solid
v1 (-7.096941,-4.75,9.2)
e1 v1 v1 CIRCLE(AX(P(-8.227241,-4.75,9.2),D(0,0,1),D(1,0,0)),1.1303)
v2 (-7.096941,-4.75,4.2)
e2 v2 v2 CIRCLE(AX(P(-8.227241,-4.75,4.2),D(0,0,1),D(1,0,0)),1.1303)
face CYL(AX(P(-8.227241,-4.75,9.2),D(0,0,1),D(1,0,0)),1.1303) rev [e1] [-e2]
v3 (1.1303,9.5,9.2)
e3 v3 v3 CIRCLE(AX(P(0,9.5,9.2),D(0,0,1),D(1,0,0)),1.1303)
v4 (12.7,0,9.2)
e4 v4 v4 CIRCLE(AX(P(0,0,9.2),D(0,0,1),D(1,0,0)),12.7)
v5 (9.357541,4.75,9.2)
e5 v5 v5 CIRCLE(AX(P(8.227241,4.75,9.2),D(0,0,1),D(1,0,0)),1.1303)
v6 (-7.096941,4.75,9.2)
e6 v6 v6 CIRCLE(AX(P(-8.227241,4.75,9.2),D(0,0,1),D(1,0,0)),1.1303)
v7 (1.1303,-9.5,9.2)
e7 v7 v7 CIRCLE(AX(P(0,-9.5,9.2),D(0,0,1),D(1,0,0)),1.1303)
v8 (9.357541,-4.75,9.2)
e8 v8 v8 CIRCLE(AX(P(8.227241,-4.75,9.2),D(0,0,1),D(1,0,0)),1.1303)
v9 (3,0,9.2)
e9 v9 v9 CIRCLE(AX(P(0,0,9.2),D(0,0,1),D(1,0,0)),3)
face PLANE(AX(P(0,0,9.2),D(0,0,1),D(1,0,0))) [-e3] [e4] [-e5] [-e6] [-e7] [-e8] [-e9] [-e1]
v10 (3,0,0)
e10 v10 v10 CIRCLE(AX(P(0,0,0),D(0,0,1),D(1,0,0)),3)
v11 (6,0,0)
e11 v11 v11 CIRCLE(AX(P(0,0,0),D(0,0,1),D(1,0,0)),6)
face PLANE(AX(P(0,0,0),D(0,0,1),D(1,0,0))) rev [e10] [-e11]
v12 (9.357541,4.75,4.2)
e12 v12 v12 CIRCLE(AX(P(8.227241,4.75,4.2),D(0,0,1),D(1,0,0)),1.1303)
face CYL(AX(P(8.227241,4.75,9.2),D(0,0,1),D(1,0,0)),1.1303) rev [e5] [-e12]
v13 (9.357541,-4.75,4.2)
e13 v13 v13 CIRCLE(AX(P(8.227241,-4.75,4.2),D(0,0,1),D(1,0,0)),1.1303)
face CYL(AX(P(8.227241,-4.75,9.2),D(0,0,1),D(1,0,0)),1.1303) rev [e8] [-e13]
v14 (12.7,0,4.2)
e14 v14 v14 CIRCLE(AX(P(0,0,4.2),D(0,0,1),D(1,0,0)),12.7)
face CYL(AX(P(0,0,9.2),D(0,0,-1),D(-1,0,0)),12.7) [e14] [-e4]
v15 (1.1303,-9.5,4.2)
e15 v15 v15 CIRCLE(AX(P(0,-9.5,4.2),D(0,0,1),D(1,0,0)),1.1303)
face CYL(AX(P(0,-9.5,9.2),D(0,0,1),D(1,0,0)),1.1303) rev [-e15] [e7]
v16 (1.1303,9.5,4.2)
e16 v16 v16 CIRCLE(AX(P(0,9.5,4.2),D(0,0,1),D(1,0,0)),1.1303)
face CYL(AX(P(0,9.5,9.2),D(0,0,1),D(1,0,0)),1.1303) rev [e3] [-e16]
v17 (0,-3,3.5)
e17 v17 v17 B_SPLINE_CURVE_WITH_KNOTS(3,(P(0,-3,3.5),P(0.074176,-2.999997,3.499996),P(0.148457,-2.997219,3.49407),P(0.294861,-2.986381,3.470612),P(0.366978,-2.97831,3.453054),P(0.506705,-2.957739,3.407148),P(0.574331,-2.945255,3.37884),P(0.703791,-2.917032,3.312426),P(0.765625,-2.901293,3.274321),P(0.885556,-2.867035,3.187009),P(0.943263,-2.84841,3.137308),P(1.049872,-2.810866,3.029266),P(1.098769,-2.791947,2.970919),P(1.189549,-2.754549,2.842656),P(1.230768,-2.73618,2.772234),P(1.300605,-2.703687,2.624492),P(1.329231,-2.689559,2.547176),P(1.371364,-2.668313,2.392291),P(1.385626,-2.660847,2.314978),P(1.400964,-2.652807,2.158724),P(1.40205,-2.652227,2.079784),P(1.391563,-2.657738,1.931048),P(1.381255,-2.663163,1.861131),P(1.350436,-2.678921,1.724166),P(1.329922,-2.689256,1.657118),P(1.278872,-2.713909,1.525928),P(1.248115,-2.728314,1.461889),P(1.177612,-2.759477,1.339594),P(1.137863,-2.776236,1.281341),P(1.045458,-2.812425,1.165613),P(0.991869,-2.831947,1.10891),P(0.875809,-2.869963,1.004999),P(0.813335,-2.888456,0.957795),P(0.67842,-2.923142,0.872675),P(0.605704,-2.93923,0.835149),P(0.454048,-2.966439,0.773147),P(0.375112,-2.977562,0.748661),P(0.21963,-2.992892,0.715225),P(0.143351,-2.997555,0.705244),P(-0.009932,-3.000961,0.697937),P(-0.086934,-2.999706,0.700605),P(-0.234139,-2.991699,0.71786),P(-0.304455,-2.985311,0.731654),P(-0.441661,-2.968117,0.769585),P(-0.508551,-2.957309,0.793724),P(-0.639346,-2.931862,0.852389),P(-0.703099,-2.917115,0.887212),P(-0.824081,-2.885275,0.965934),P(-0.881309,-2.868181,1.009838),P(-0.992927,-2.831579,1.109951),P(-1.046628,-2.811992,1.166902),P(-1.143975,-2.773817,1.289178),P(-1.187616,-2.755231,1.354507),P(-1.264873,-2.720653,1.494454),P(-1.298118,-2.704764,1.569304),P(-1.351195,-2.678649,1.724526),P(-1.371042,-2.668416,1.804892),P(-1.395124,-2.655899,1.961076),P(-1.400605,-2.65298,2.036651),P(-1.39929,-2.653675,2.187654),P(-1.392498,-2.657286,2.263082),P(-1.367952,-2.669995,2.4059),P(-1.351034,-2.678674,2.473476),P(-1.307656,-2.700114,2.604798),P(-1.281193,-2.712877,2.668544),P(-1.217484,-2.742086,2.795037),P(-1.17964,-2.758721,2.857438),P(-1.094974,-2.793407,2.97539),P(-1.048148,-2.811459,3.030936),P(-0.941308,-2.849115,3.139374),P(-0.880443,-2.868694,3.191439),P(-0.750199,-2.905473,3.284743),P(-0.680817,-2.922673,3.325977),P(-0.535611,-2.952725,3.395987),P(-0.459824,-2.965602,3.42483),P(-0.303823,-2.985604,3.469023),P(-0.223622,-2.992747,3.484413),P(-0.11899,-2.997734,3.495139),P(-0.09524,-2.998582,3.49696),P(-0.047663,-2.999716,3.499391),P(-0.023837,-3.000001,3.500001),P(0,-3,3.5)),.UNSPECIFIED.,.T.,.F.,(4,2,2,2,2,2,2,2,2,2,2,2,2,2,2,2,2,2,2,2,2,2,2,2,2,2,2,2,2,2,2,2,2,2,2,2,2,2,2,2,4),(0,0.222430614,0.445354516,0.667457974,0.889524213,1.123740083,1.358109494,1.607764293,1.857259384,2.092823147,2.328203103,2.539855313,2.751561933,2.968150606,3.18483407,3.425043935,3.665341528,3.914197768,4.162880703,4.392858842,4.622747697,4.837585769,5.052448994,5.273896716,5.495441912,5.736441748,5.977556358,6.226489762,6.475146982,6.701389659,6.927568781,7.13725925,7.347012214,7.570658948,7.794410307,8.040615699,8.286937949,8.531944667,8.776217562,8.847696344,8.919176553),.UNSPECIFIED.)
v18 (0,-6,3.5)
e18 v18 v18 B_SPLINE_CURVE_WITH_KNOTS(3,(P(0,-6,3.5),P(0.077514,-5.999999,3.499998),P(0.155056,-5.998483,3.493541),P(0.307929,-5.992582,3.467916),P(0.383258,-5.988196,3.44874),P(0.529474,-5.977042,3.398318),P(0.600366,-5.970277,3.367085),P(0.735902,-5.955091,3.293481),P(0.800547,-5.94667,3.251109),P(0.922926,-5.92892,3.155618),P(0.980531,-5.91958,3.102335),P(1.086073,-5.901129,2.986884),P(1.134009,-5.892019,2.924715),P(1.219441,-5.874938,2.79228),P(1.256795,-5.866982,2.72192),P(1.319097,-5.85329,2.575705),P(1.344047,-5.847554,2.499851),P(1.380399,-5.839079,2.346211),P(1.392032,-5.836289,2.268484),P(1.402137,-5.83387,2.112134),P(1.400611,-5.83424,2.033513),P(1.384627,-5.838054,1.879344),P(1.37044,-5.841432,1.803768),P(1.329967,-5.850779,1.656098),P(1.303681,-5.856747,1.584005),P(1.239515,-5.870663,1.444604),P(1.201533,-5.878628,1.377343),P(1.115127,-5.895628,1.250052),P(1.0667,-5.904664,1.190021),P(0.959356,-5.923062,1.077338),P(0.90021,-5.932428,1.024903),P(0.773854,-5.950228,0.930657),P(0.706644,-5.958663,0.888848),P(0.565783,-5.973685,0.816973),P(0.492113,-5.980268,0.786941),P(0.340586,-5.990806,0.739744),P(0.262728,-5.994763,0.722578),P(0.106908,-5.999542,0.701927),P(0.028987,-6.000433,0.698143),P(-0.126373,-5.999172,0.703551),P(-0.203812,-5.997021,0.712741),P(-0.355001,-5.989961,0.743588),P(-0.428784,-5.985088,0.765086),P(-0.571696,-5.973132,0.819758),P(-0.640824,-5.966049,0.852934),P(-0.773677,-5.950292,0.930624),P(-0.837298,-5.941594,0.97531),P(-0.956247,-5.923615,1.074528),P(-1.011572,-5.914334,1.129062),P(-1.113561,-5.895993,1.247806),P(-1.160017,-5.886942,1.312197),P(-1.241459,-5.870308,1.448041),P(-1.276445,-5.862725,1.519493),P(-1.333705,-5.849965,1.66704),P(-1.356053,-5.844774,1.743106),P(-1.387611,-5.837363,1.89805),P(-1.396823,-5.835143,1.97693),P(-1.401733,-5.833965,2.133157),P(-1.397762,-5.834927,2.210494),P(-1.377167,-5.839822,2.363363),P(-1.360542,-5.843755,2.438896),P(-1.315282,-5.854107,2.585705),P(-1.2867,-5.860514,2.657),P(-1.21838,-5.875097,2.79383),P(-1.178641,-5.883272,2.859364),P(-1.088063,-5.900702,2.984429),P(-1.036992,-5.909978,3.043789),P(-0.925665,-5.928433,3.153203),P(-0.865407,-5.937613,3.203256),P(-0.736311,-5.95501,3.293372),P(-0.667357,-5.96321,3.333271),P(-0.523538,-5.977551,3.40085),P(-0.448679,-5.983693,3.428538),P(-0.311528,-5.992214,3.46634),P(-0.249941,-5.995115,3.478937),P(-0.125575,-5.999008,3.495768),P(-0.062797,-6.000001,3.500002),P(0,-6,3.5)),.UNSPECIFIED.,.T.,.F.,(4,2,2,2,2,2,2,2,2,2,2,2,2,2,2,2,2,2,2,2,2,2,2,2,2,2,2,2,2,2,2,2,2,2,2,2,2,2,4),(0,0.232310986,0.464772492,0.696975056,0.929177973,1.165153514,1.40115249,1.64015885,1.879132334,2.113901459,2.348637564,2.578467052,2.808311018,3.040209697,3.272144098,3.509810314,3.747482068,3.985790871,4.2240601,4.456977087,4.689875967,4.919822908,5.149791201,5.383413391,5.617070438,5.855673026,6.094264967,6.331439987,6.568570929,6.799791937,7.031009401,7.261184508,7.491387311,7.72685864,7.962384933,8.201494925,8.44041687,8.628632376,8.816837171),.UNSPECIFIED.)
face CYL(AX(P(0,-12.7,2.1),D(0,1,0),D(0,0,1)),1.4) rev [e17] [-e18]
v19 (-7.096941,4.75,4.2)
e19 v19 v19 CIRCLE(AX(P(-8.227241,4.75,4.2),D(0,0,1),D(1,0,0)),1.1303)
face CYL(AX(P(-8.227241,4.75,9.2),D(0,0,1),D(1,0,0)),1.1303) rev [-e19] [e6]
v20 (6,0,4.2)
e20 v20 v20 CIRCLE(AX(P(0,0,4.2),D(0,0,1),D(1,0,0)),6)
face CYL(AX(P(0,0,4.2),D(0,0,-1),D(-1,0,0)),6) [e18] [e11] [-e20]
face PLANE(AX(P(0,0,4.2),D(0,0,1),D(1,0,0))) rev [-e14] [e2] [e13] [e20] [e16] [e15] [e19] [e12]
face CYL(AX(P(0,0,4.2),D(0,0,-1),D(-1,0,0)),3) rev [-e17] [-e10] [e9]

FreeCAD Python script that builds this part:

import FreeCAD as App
import Part
import Sketcher
from FreeCAD import Vector
Q = App.Units.Quantity

doc = App.newDocument("Part")
body = doc.addObject("PartDesign::Body", "Body")

sketch1 = body.newObject("Sketcher::SketchObject", "Sketch")
sketch1.AttachmentSupport = (doc.getObject("XY_Plane"), [""])
sketch1.MapMode = "FlatFace"
sketch1.addGeometry([
    Part.Circle(Vector(0, 0, 0), Vector(0, 0, 1), 6),
    Part.Circle(Vector(0, 0, 0), Vector(0, 0, 1), 3),
], False)
sketch1.addConstraint([
    Sketcher.Constraint("Coincident", 0, 3, -1, 1),
    Sketcher.Constraint("Coincident", 1, 3, -1, 1),
    Sketcher.Constraint("Diameter", 0, Q("12 mm")),
    Sketcher.Constraint("Diameter", 1, Q("6 mm")),
])
pad1 = body.newObject("PartDesign::Pad", "Pad")
pad1.Profile = sketch1
pad1.Length = 4.2

sketch2 = body.newObject("Sketcher::SketchObject", "Sketch001")
sketch2.AttachmentSupport = (doc.getObject("XY_Plane"), [""])
sketch2.MapMode = "FlatFace"
sketch2.AttachmentOffset = App.Placement(Vector(0, 0, 4.2), App.Rotation())
sketch2.addGeometry([
    Part.Circle(Vector(0, 0, 0), Vector(0, 0, 1), 12.7),
    Part.Circle(Vector(0, 0, 0), Vector(0, 0, 1), 3),
], False)
sketch2.addConstraint([
    Sketcher.Constraint("Coincident", 0, 3, -1, 1),
    Sketcher.Constraint("Coincident", 1, 3, -1, 1),
    Sketcher.Constraint("Diameter", 1, Q("6 mm")),
    Sketcher.Constraint("Diameter", 0, Q("25.4 mm")),
])
pad2 = body.newObject("PartDesign::Pad", "Pad001")
pad2.Profile = sketch2
pad2.Length = 5

sketch3 = body.newObject("Sketcher::SketchObject", "Sketch002")
sketch3.AttachmentSupport = (doc.getObject("XZ_Plane"), [""])
sketch3.MapMode = "FlatFace"
sketch3.addGeometry(Part.Circle(Vector(0, 2.1, 0), Vector(0, 0, 1), 1.4), False)
sketch3.addConstraint([
    Sketcher.Constraint("PointOnObject", 0, 3, -2),
    Sketcher.Constraint("Diameter", 0, Q("2.8 mm")),
    Sketcher.Constraint("DistanceY", -1, 1, 0, 3, Q("2.1 mm")),
])
pocket1 = body.newObject("PartDesign::Pocket", "Pocket")
pocket1.Profile = sketch3
pocket1.Type = "ThroughAll"
pocket1.Reversed = True

sketch4 = body.newObject("Sketcher::SketchObject", "Sketch003")
sketch4.AttachmentSupport = (doc.getObject("XY_Plane"), [""])
sketch4.MapMode = "FlatFace"
sketch4.AttachmentOffset = App.Placement(Vector(0, 0, 9.2), App.Rotation())
sketch4.addGeometry([
    Part.Circle(Vector(-8.2, -4.8, 0), Vector(0, 0, 1), 1.1),
    Part.Circle(Vector(-8.2, 4.8, 0), Vector(0, 0, 1), 1.1),
    Part.Circle(Vector(0, 9.5, 0), Vector(0, 0, 1), 1.1),
    Part.Circle(Vector(8.2, 4.8, 0), Vector(0, 0, 1), 1.1),
    Part.Circle(Vector(8.2, -4.8, 0), Vector(0, 0, 1), 1.1),
    Part.Circle(Vector(0, -9.5, 0), Vector(0, 0, 1), 1.1),
], False)
sketch4.addConstraint([
    Sketcher.Constraint("Equal", 0, 1),
    Sketcher.Constraint("Equal", 1, 2),
    Sketcher.Constraint("Equal", 2, 3),
    Sketcher.Constraint("Equal", 3, 4),
    Sketcher.Constraint("Equal", 4, 5),
    Sketcher.Constraint("Symmetric", 0, 3, 3, 3, -1, 1),
    Sketcher.Constraint("Symmetric", 1, 3, 4, 3, -1, 1),
    Sketcher.Constraint("Symmetric", 2, 3, 5, 3, -1, 1),
    Sketcher.Constraint("Symmetric", 1, 3, 3, 3, -2),
    Sketcher.Constraint("PointOnObject", 2, 3, -2),
    Sketcher.Constraint("DistanceY", 5, 3, 2, 3, Q("19 mm")),
    Sketcher.Constraint("Diameter", 0, Q("2.2606 mm")),
    Sketcher.Constraint("DistanceY", 0, 3, 1, 3, Q("9.5 mm")),
    Sketcher.Constraint("DistanceX", 0, 3, -1, 1, Q("8.227241 mm")),
])
doc.recompute()
hole = body.newObject("PartDesign::Hole", "Hole")
hole.Profile = sketch4
hole.ThreadType = "None"
hole.Diameter = 2.2606
hole.DepthType = "Dimension"
hole.Depth = 7.6
hole.DrillPoint = "Angled"
hole.DrillPointAngle = 118

doc.recompute()
